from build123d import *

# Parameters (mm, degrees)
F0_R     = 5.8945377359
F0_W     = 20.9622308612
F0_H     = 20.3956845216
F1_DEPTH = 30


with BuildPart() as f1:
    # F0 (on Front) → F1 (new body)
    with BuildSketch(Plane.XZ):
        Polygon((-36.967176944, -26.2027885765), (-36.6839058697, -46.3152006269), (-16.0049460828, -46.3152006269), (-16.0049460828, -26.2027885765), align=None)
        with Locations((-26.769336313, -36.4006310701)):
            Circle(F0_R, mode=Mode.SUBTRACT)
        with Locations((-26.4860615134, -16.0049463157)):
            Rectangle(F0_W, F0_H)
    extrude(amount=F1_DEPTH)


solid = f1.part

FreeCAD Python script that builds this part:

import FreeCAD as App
import Part
import Sketcher


def add_polygon(sketch, points):
    """Adds a closed chain of lines whose ends are joined by coincident constraints."""
    first, n = sketch.GeometryCount, len(points)
    for a, b in zip(points, points[1:] + points[:1]):
        sketch.addGeometry(Part.LineSegment(App.Vector(*a, 0), App.Vector(*b, 0)), False)
    for i in range(n):
        sketch.addConstraint(Sketcher.Constraint("Coincident", first + i, 2, first + (i + 1) % n, 1))

doc = App.newDocument("Part")
params = doc.addObject("Spreadsheet::Sheet", "Params")
for row, (alias, value) in enumerate([
    ("pad1_length", "30 mm"),
], start=1):
    params.set(f"A{row}", alias)
    params.set(f"B{row}", "=" + value)
    params.setAlias(f"B{row}", alias)

body = doc.addObject("PartDesign::Body", "Body")

sketch1 = doc.addObject("Sketcher::SketchObject", "Sketch")
body.addObject(sketch1)
sketch1.AttachmentSupport = (doc.XZ_Plane, [""])
sketch1.MapMode = "FlatFace"
add_polygon(sketch1, [(-37, -26), (-37, -46), (-16, -46), (-16, -6), (-37, -6)])
sketch1.addGeometry(Part.Circle(App.Vector(-27, -36, 0), App.Vector(0, 0, 1), 6), False)
sketch1.addConstraint(Sketcher.Constraint("Horizontal", 1))
sketch1.addConstraint(Sketcher.Constraint("Vertical", 2))
sketch1.addConstraint(Sketcher.Constraint("Horizontal", 3))
sketch1.addConstraint(Sketcher.Constraint("Vertical", 4))
sketch1.addConstraint(Sketcher.Constraint("Diameter", 5, 11.789075))
sketch1.addConstraint(Sketcher.Constraint("DistanceX", 1, 1, 1, 2, 20.67896))
sketch1.addConstraint(Sketcher.Constraint("DistanceX", 3, 2, 3, 1, 20.962231))
sketch1.addConstraint(Sketcher.Constraint("DistanceY", 0, 2, -1, 1, 46.315201))
sketch1.addConstraint(Sketcher.Constraint("DistanceY", 2, 1, 2, 2, 40.508097))
sketch1.addConstraint(Sketcher.Constraint("DistanceY", 4, 2, 4, 1, 20.395685))
sketch1.addConstraint(Sketcher.Constraint("DistanceY", 5, 3, -1, 1, 36.400631))
sketch1.addConstraint(Sketcher.Constraint("DistanceX", 0, 2, 5, 3, 9.91457))
sketch1.addConstraint(Sketcher.Constraint("DistanceX", 5, 3, -1, 1, 26.769336))
pad1 = doc.addObject("PartDesign::Pad", "Pad")
body.addObject(pad1)
pad1.Profile = sketch1
pad1.setExpression("Length", "Params.pad1_length")

doc.recompute()
